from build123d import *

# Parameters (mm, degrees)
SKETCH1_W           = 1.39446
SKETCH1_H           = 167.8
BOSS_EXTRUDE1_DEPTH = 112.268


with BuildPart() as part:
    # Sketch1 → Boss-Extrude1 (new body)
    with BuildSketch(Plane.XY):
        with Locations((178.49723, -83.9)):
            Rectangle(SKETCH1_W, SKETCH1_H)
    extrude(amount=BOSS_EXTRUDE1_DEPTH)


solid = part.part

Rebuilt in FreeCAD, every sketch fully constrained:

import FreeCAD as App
import Part
import Sketcher
from FreeCAD import Vector

doc = App.newDocument("Part")
params = doc.addObject("Spreadsheet::Sheet", "Params")
for row, (alias, value) in enumerate([
    ("sketch1_height", "167.8 mm"),
    ("pad1_length", "112.268 mm"),
], start=1):
    params.set(f"A{row}", alias)
    params.set(f"B{row}", "=" + value)
    params.setAlias(f"B{row}", alias)

body = doc.addObject("PartDesign::Body", "Body")

# Sketch on XY plane
sketch1 = body.newObject("Sketcher::SketchObject", "Sketch")
sketch1.AttachmentSupport = (doc.getObject("XY_Plane"), [""])
sketch1.MapMode = "FlatFace"
sketch1.addGeometry(Part.LineSegment(Vector(177.8, 0, 0), Vector(177.8, -167.8, 0)), False)
sketch1.addGeometry(Part.LineSegment(Vector(177.8, -167.8, 0), Vector(179.19446, -167.8, 0)), False)
sketch1.addGeometry(Part.LineSegment(Vector(179.19446, -167.8, 0), Vector(179.19446, 0, 0)), False)
sketch1.addGeometry(Part.LineSegment(Vector(179.19446, 0, 0), Vector(177.8, 0, 0)), False)
sketch1.addConstraint(Sketcher.Constraint("Coincident", 0, 2, 1, 1))
sketch1.addConstraint(Sketcher.Constraint("Coincident", 1, 2, 2, 1))
sketch1.addConstraint(Sketcher.Constraint("Coincident", 2, 2, 3, 1))
sketch1.addConstraint(Sketcher.Constraint("Coincident", 3, 2, 0, 1))
sketch1.addConstraint(Sketcher.Constraint("Vertical", 0))
sketch1.addConstraint(Sketcher.Constraint("Horizontal", 1))
sketch1.addConstraint(Sketcher.Constraint("Vertical", 2))
sketch1.addConstraint(Sketcher.Constraint("Horizontal", 3))
sketch1.addConstraint(Sketcher.Constraint("PointOnObject", 2, 2, -1))
sketch1.addConstraint(Sketcher.Constraint("DistanceY", 0, 2, 0, 1, 167.8))
sketch1.addConstraint(Sketcher.Constraint("DistanceX", -1, 1, 0, 2, 177.8))
sketch1.addConstraint(Sketcher.Constraint("DistanceX", 1, 1, 1, 2, 1.39446))
sketch1.setExpression("Constraints[9]", "Params.sketch1_height")
pad1 = body.newObject("PartDesign::Pad", "Pad")
pad1.Profile = sketch1
pad1.setExpression("Length", "Params.pad1_length")

doc.recompute()
